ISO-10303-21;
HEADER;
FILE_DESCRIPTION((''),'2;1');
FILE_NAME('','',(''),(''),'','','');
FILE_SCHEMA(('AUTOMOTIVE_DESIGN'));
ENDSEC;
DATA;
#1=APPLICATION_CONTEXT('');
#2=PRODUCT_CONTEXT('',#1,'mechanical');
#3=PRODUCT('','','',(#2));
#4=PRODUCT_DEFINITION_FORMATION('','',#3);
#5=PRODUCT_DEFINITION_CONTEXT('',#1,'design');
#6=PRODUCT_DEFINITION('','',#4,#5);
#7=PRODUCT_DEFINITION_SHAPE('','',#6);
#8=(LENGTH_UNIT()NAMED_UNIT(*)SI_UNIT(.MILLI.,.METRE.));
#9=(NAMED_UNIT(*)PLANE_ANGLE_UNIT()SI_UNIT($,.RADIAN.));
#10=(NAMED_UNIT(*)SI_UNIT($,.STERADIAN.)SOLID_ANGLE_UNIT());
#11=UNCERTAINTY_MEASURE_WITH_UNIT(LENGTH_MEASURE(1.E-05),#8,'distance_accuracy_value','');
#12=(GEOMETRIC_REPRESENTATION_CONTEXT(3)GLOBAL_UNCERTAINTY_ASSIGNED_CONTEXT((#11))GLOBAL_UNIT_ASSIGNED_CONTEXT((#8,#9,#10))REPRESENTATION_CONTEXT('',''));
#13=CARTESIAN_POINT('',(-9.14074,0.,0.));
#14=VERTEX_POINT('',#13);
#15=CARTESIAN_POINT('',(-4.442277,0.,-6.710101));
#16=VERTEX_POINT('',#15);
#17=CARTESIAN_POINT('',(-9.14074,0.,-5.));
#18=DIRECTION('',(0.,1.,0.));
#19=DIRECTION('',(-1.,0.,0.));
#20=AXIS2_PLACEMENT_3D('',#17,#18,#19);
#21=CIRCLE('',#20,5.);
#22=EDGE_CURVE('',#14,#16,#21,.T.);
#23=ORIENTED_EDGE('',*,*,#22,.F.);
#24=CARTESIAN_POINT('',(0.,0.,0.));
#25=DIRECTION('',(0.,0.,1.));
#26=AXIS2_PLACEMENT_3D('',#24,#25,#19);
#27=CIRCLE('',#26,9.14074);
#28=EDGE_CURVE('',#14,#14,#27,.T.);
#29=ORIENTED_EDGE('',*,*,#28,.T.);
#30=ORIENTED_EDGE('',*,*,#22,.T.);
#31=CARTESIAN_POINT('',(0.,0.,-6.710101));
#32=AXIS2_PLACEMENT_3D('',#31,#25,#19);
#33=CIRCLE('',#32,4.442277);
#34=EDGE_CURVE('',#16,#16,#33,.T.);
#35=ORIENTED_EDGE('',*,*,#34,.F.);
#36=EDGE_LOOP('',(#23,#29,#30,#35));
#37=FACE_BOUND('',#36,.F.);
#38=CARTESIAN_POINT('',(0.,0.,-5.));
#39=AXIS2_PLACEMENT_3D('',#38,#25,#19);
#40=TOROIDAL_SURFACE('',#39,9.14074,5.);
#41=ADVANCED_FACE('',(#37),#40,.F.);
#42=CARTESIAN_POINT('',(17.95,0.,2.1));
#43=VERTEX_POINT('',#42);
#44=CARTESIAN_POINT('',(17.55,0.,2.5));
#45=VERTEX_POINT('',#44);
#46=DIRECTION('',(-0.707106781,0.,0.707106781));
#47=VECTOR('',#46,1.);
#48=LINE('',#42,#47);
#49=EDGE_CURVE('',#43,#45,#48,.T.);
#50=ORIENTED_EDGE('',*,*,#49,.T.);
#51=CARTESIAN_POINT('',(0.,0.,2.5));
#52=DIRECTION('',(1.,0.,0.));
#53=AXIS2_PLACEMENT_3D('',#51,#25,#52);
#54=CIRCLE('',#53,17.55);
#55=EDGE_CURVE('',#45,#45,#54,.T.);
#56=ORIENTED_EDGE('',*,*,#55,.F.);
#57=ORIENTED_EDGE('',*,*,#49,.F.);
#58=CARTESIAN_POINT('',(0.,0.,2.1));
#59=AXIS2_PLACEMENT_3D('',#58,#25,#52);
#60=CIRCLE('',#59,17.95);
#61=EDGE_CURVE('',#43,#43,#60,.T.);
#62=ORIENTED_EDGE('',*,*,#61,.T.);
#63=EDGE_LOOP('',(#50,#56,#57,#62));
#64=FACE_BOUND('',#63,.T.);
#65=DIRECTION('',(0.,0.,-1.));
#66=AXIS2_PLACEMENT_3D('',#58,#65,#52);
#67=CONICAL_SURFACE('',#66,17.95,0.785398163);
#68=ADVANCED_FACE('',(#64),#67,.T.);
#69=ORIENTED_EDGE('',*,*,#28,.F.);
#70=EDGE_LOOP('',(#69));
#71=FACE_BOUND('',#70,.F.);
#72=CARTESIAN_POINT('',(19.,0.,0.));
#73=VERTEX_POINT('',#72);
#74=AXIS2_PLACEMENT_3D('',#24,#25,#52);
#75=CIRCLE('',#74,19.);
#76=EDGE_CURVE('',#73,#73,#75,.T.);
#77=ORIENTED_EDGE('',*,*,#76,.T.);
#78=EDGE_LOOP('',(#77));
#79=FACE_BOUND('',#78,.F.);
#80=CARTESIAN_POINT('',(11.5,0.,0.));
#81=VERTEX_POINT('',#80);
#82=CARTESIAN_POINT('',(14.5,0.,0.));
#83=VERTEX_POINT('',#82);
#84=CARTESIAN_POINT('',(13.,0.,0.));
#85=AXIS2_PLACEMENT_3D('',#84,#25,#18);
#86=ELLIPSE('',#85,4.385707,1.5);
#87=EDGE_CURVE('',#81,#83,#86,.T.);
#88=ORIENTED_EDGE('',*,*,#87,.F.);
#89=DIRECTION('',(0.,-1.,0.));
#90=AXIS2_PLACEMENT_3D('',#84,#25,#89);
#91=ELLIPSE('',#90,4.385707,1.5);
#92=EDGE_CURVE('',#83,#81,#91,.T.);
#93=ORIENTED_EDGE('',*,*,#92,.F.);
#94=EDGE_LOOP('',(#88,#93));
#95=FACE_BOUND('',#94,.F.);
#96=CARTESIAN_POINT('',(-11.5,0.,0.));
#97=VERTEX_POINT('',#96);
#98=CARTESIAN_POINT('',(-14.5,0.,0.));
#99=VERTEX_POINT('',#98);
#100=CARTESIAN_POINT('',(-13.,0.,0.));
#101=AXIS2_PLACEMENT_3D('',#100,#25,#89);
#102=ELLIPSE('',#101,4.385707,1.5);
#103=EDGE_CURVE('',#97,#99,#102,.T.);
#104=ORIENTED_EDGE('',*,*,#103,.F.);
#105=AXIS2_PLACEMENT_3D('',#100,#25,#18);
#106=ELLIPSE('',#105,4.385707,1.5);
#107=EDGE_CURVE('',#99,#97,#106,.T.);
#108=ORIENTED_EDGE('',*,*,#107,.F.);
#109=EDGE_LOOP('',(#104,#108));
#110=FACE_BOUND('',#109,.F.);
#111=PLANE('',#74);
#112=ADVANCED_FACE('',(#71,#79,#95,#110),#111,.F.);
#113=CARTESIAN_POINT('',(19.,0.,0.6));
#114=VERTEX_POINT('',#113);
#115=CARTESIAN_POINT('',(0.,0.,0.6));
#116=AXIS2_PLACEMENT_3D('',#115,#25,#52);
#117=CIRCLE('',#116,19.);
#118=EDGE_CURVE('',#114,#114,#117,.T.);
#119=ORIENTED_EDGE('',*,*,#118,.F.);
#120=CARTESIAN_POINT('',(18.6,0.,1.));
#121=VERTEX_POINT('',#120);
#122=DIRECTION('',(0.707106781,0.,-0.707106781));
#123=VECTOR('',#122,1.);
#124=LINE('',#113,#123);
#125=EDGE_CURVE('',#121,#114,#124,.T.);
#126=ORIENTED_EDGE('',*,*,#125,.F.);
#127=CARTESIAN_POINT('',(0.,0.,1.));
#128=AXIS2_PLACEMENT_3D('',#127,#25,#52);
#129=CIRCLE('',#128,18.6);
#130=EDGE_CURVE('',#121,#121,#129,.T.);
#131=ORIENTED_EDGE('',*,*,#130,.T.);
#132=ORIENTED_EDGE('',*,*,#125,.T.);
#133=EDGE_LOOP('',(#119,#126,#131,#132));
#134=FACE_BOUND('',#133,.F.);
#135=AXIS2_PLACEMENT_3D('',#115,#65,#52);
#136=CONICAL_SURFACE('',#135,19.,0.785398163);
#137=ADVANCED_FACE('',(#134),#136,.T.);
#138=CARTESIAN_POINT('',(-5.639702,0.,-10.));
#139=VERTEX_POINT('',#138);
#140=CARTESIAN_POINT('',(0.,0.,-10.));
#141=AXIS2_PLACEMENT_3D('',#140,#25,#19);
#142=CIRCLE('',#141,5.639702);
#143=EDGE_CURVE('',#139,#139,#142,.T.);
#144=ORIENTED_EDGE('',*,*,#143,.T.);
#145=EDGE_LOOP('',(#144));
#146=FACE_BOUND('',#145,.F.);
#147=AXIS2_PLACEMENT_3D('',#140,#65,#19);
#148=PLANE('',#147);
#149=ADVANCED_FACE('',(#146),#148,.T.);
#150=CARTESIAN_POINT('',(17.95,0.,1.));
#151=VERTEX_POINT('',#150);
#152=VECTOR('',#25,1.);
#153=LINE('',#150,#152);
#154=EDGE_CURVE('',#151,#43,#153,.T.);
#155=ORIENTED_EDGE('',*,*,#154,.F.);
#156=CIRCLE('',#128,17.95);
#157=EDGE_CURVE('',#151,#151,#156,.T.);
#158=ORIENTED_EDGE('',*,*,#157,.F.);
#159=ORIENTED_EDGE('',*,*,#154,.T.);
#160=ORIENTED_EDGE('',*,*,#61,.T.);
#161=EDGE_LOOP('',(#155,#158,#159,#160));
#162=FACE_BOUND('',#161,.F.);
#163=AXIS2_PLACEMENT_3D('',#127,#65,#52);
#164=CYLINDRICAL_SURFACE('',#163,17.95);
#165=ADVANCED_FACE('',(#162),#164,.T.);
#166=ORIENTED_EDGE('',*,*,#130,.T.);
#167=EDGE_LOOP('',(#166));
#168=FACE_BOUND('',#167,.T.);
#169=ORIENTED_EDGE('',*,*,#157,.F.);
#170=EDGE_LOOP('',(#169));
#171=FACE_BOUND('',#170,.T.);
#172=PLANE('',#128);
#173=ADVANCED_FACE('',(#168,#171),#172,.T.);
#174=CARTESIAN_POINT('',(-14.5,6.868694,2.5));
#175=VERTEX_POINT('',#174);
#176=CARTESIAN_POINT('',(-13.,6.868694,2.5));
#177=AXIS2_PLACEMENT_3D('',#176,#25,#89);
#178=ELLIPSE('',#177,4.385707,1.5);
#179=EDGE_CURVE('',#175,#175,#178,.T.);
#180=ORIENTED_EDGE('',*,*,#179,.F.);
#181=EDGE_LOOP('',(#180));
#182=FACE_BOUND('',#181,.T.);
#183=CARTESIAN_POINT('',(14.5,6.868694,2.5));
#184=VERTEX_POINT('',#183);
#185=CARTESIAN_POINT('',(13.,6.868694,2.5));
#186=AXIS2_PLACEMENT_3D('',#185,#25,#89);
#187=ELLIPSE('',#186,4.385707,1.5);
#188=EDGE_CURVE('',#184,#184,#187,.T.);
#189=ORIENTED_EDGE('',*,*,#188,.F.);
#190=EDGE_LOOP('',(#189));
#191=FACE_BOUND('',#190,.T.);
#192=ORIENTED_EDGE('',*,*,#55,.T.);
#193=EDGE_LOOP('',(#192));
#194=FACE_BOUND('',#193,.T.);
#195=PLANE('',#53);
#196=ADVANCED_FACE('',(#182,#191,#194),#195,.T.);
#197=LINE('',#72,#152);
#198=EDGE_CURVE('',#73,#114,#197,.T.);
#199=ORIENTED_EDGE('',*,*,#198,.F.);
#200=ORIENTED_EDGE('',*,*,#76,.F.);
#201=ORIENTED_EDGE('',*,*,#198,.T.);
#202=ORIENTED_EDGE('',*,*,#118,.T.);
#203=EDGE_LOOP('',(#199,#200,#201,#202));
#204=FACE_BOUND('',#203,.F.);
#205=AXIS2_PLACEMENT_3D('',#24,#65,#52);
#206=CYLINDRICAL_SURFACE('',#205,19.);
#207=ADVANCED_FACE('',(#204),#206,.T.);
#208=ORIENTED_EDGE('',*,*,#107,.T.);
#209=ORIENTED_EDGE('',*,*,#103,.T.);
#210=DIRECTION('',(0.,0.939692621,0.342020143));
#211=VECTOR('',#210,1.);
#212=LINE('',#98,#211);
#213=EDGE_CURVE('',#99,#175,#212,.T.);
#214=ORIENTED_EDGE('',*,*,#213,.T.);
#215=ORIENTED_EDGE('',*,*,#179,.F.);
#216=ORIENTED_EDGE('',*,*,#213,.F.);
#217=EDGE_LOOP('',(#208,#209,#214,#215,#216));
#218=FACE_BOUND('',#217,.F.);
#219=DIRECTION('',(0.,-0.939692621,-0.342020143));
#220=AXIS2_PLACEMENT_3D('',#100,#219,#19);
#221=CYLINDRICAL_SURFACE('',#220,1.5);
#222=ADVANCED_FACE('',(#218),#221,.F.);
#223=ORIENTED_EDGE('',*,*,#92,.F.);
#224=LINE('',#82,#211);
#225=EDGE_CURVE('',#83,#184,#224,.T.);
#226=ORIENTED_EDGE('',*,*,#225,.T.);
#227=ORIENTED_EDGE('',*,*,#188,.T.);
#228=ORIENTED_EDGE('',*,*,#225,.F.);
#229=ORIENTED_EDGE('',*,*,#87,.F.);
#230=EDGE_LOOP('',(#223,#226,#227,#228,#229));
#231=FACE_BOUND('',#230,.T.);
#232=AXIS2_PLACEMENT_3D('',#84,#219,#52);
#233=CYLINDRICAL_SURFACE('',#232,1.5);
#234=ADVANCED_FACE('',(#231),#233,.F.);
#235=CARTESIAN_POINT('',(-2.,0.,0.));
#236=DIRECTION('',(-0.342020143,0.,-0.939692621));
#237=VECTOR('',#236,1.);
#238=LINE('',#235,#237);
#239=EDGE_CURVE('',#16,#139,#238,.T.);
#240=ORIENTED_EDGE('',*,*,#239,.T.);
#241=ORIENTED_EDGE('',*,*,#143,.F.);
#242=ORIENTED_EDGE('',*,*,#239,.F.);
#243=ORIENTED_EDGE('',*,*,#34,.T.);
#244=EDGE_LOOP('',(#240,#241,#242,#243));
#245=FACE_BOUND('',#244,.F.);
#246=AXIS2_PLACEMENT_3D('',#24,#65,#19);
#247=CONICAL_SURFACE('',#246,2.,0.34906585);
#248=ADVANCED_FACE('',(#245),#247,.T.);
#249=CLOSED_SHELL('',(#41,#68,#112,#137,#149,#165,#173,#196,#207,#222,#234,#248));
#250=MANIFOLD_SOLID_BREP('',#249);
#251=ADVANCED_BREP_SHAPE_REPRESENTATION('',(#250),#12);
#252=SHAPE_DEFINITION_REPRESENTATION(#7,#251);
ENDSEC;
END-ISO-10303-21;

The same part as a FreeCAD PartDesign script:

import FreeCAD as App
import Part
import Sketcher

V = App.Vector


def edges_at(feature, points):
    """Names of the edges that pass closest to the given points."""
    edges = feature.Shape.Edges
    near = lambda p: min(range(len(edges)), key=lambda i: edges[i].distToShape(Part.Vertex(*p))[0])
    return sorted({f"Edge{near(p) + 1}" for p in points})

doc = App.newDocument("Part")
body = doc.addObject("PartDesign::Body", "Body")

# Sketch on XY plane
sketch1 = doc.addObject("Sketcher::SketchObject", "Sketch")
body.addObject(sketch1)
sketch1.AttachmentSupport = (doc.XY_Plane, [""])
sketch1.MapMode = "FlatFace"
sketch1.addGeometry(Part.Circle(V(0, 0, 0), V(0, 0, 1), 19), False)
sketch1.addConstraint(Sketcher.Constraint("Coincident", 0, 3, -1, 1))
sketch1.addConstraint(Sketcher.Constraint("Diameter", 0, 38.0))
pad1 = doc.addObject("PartDesign::Pad", "Pad")
body.addObject(pad1)
pad1.Profile = sketch1
pad1.Length = 1

# Sketch on XY plane
sketch2 = doc.addObject("Sketcher::SketchObject", "Sketch001")
body.addObject(sketch2)
sketch2.AttachmentSupport = (doc.XY_Plane, [""])
sketch2.MapMode = "FlatFace"
sketch2.AttachmentOffset = App.Placement(V(0, 0, 1), App.Rotation())
sketch2.addGeometry(Part.Circle(V(0, 0, 0), V(0, 0, 1), 18), False)
sketch2.addConstraint(Sketcher.Constraint("Coincident", 0, 3, -1, 1))
sketch2.addConstraint(Sketcher.Constraint("Diameter", 0, 35.9))
pad2 = doc.addObject("PartDesign::Pad", "Pad001")
body.addObject(pad2)
pad2.Profile = sketch2
pad2.Length = 1.5
doc.recompute()

chamfer = doc.addObject("PartDesign::Chamfer", "Chamfer")
body.addObject(chamfer)
chamfer.Base = (pad2, edges_at(pad2, [(-17.95, 0, 2.5)]))
chamfer.Size = 0.4
doc.recompute()

chamfer2 = doc.addObject("PartDesign::Chamfer", "Chamfer001")
body.addObject(chamfer2)
chamfer2.Base = (chamfer, edges_at(chamfer, [(-19, 0, 1)]))
chamfer2.Size = 0.4

# Sketch on XY plane
sketch3 = doc.addObject("Sketcher::SketchObject", "Sketch002")
body.addObject(sketch3)
sketch3.AttachmentSupport = (doc.XY_Plane, [""])
sketch3.MapMode = "FlatFace"
sketch3.addGeometry(Part.Circle(V(0, 0, 0), V(0, 0, 1), 2), False)
sketch3.addConstraint(Sketcher.Constraint("Coincident", 0, 3, -1, 1))
sketch3.addConstraint(Sketcher.Constraint("Diameter", 0, 4.0))
pad3 = doc.addObject("PartDesign::Pad", "Pad002")
body.addObject(pad3)
pad3.Profile = sketch3
pad3.Length = 10
pad3.Reversed = True
pad3.TaperAngle = 20
doc.recompute()

fillet = doc.addObject("PartDesign::Fillet", "Fillet")
body.addObject(fillet)
fillet.Base = (pad3, edges_at(pad3, [(2, 0, 0)]))
fillet.Radius = 5

# Sketch on an angled plane
sketch4 = doc.addObject("Sketcher::SketchObject", "Sketch003")
body.addObject(sketch4)
sketch4.Placement = App.Placement(V(0, 0, 0), App.Rotation(V(1, 0, 0), V(0, 0.342020143, -0.939692621), V(0, 0.939692621, 0.342020143), "ZXY"))
sketch4.addGeometry(Part.Circle(V(13, 0, 0), V(0, 0, 1), 1.5), False)
sketch4.addConstraint(Sketcher.Constraint("PointOnObject", 0, 3, -1))
sketch4.addConstraint(Sketcher.Constraint("Diameter", 0, 3.0))
sketch4.addConstraint(Sketcher.Constraint("DistanceX", -1, 1, 0, 3, 13.0))
pocket1 = doc.addObject("PartDesign::Pocket", "Pocket")
body.addObject(pocket1)
pocket1.Profile = sketch4
pocket1.Type = "ThroughAll"
pocket1.Midplane = True
doc.recompute()

mirrored = doc.addObject("PartDesign::Mirrored", "Mirrored")
body.addObject(mirrored)
mirrored.Originals = [pocket1]
mirrored.MirrorPlane = (doc.YZ_Plane, [""])
body.Tip = mirrored

doc.recompute()
